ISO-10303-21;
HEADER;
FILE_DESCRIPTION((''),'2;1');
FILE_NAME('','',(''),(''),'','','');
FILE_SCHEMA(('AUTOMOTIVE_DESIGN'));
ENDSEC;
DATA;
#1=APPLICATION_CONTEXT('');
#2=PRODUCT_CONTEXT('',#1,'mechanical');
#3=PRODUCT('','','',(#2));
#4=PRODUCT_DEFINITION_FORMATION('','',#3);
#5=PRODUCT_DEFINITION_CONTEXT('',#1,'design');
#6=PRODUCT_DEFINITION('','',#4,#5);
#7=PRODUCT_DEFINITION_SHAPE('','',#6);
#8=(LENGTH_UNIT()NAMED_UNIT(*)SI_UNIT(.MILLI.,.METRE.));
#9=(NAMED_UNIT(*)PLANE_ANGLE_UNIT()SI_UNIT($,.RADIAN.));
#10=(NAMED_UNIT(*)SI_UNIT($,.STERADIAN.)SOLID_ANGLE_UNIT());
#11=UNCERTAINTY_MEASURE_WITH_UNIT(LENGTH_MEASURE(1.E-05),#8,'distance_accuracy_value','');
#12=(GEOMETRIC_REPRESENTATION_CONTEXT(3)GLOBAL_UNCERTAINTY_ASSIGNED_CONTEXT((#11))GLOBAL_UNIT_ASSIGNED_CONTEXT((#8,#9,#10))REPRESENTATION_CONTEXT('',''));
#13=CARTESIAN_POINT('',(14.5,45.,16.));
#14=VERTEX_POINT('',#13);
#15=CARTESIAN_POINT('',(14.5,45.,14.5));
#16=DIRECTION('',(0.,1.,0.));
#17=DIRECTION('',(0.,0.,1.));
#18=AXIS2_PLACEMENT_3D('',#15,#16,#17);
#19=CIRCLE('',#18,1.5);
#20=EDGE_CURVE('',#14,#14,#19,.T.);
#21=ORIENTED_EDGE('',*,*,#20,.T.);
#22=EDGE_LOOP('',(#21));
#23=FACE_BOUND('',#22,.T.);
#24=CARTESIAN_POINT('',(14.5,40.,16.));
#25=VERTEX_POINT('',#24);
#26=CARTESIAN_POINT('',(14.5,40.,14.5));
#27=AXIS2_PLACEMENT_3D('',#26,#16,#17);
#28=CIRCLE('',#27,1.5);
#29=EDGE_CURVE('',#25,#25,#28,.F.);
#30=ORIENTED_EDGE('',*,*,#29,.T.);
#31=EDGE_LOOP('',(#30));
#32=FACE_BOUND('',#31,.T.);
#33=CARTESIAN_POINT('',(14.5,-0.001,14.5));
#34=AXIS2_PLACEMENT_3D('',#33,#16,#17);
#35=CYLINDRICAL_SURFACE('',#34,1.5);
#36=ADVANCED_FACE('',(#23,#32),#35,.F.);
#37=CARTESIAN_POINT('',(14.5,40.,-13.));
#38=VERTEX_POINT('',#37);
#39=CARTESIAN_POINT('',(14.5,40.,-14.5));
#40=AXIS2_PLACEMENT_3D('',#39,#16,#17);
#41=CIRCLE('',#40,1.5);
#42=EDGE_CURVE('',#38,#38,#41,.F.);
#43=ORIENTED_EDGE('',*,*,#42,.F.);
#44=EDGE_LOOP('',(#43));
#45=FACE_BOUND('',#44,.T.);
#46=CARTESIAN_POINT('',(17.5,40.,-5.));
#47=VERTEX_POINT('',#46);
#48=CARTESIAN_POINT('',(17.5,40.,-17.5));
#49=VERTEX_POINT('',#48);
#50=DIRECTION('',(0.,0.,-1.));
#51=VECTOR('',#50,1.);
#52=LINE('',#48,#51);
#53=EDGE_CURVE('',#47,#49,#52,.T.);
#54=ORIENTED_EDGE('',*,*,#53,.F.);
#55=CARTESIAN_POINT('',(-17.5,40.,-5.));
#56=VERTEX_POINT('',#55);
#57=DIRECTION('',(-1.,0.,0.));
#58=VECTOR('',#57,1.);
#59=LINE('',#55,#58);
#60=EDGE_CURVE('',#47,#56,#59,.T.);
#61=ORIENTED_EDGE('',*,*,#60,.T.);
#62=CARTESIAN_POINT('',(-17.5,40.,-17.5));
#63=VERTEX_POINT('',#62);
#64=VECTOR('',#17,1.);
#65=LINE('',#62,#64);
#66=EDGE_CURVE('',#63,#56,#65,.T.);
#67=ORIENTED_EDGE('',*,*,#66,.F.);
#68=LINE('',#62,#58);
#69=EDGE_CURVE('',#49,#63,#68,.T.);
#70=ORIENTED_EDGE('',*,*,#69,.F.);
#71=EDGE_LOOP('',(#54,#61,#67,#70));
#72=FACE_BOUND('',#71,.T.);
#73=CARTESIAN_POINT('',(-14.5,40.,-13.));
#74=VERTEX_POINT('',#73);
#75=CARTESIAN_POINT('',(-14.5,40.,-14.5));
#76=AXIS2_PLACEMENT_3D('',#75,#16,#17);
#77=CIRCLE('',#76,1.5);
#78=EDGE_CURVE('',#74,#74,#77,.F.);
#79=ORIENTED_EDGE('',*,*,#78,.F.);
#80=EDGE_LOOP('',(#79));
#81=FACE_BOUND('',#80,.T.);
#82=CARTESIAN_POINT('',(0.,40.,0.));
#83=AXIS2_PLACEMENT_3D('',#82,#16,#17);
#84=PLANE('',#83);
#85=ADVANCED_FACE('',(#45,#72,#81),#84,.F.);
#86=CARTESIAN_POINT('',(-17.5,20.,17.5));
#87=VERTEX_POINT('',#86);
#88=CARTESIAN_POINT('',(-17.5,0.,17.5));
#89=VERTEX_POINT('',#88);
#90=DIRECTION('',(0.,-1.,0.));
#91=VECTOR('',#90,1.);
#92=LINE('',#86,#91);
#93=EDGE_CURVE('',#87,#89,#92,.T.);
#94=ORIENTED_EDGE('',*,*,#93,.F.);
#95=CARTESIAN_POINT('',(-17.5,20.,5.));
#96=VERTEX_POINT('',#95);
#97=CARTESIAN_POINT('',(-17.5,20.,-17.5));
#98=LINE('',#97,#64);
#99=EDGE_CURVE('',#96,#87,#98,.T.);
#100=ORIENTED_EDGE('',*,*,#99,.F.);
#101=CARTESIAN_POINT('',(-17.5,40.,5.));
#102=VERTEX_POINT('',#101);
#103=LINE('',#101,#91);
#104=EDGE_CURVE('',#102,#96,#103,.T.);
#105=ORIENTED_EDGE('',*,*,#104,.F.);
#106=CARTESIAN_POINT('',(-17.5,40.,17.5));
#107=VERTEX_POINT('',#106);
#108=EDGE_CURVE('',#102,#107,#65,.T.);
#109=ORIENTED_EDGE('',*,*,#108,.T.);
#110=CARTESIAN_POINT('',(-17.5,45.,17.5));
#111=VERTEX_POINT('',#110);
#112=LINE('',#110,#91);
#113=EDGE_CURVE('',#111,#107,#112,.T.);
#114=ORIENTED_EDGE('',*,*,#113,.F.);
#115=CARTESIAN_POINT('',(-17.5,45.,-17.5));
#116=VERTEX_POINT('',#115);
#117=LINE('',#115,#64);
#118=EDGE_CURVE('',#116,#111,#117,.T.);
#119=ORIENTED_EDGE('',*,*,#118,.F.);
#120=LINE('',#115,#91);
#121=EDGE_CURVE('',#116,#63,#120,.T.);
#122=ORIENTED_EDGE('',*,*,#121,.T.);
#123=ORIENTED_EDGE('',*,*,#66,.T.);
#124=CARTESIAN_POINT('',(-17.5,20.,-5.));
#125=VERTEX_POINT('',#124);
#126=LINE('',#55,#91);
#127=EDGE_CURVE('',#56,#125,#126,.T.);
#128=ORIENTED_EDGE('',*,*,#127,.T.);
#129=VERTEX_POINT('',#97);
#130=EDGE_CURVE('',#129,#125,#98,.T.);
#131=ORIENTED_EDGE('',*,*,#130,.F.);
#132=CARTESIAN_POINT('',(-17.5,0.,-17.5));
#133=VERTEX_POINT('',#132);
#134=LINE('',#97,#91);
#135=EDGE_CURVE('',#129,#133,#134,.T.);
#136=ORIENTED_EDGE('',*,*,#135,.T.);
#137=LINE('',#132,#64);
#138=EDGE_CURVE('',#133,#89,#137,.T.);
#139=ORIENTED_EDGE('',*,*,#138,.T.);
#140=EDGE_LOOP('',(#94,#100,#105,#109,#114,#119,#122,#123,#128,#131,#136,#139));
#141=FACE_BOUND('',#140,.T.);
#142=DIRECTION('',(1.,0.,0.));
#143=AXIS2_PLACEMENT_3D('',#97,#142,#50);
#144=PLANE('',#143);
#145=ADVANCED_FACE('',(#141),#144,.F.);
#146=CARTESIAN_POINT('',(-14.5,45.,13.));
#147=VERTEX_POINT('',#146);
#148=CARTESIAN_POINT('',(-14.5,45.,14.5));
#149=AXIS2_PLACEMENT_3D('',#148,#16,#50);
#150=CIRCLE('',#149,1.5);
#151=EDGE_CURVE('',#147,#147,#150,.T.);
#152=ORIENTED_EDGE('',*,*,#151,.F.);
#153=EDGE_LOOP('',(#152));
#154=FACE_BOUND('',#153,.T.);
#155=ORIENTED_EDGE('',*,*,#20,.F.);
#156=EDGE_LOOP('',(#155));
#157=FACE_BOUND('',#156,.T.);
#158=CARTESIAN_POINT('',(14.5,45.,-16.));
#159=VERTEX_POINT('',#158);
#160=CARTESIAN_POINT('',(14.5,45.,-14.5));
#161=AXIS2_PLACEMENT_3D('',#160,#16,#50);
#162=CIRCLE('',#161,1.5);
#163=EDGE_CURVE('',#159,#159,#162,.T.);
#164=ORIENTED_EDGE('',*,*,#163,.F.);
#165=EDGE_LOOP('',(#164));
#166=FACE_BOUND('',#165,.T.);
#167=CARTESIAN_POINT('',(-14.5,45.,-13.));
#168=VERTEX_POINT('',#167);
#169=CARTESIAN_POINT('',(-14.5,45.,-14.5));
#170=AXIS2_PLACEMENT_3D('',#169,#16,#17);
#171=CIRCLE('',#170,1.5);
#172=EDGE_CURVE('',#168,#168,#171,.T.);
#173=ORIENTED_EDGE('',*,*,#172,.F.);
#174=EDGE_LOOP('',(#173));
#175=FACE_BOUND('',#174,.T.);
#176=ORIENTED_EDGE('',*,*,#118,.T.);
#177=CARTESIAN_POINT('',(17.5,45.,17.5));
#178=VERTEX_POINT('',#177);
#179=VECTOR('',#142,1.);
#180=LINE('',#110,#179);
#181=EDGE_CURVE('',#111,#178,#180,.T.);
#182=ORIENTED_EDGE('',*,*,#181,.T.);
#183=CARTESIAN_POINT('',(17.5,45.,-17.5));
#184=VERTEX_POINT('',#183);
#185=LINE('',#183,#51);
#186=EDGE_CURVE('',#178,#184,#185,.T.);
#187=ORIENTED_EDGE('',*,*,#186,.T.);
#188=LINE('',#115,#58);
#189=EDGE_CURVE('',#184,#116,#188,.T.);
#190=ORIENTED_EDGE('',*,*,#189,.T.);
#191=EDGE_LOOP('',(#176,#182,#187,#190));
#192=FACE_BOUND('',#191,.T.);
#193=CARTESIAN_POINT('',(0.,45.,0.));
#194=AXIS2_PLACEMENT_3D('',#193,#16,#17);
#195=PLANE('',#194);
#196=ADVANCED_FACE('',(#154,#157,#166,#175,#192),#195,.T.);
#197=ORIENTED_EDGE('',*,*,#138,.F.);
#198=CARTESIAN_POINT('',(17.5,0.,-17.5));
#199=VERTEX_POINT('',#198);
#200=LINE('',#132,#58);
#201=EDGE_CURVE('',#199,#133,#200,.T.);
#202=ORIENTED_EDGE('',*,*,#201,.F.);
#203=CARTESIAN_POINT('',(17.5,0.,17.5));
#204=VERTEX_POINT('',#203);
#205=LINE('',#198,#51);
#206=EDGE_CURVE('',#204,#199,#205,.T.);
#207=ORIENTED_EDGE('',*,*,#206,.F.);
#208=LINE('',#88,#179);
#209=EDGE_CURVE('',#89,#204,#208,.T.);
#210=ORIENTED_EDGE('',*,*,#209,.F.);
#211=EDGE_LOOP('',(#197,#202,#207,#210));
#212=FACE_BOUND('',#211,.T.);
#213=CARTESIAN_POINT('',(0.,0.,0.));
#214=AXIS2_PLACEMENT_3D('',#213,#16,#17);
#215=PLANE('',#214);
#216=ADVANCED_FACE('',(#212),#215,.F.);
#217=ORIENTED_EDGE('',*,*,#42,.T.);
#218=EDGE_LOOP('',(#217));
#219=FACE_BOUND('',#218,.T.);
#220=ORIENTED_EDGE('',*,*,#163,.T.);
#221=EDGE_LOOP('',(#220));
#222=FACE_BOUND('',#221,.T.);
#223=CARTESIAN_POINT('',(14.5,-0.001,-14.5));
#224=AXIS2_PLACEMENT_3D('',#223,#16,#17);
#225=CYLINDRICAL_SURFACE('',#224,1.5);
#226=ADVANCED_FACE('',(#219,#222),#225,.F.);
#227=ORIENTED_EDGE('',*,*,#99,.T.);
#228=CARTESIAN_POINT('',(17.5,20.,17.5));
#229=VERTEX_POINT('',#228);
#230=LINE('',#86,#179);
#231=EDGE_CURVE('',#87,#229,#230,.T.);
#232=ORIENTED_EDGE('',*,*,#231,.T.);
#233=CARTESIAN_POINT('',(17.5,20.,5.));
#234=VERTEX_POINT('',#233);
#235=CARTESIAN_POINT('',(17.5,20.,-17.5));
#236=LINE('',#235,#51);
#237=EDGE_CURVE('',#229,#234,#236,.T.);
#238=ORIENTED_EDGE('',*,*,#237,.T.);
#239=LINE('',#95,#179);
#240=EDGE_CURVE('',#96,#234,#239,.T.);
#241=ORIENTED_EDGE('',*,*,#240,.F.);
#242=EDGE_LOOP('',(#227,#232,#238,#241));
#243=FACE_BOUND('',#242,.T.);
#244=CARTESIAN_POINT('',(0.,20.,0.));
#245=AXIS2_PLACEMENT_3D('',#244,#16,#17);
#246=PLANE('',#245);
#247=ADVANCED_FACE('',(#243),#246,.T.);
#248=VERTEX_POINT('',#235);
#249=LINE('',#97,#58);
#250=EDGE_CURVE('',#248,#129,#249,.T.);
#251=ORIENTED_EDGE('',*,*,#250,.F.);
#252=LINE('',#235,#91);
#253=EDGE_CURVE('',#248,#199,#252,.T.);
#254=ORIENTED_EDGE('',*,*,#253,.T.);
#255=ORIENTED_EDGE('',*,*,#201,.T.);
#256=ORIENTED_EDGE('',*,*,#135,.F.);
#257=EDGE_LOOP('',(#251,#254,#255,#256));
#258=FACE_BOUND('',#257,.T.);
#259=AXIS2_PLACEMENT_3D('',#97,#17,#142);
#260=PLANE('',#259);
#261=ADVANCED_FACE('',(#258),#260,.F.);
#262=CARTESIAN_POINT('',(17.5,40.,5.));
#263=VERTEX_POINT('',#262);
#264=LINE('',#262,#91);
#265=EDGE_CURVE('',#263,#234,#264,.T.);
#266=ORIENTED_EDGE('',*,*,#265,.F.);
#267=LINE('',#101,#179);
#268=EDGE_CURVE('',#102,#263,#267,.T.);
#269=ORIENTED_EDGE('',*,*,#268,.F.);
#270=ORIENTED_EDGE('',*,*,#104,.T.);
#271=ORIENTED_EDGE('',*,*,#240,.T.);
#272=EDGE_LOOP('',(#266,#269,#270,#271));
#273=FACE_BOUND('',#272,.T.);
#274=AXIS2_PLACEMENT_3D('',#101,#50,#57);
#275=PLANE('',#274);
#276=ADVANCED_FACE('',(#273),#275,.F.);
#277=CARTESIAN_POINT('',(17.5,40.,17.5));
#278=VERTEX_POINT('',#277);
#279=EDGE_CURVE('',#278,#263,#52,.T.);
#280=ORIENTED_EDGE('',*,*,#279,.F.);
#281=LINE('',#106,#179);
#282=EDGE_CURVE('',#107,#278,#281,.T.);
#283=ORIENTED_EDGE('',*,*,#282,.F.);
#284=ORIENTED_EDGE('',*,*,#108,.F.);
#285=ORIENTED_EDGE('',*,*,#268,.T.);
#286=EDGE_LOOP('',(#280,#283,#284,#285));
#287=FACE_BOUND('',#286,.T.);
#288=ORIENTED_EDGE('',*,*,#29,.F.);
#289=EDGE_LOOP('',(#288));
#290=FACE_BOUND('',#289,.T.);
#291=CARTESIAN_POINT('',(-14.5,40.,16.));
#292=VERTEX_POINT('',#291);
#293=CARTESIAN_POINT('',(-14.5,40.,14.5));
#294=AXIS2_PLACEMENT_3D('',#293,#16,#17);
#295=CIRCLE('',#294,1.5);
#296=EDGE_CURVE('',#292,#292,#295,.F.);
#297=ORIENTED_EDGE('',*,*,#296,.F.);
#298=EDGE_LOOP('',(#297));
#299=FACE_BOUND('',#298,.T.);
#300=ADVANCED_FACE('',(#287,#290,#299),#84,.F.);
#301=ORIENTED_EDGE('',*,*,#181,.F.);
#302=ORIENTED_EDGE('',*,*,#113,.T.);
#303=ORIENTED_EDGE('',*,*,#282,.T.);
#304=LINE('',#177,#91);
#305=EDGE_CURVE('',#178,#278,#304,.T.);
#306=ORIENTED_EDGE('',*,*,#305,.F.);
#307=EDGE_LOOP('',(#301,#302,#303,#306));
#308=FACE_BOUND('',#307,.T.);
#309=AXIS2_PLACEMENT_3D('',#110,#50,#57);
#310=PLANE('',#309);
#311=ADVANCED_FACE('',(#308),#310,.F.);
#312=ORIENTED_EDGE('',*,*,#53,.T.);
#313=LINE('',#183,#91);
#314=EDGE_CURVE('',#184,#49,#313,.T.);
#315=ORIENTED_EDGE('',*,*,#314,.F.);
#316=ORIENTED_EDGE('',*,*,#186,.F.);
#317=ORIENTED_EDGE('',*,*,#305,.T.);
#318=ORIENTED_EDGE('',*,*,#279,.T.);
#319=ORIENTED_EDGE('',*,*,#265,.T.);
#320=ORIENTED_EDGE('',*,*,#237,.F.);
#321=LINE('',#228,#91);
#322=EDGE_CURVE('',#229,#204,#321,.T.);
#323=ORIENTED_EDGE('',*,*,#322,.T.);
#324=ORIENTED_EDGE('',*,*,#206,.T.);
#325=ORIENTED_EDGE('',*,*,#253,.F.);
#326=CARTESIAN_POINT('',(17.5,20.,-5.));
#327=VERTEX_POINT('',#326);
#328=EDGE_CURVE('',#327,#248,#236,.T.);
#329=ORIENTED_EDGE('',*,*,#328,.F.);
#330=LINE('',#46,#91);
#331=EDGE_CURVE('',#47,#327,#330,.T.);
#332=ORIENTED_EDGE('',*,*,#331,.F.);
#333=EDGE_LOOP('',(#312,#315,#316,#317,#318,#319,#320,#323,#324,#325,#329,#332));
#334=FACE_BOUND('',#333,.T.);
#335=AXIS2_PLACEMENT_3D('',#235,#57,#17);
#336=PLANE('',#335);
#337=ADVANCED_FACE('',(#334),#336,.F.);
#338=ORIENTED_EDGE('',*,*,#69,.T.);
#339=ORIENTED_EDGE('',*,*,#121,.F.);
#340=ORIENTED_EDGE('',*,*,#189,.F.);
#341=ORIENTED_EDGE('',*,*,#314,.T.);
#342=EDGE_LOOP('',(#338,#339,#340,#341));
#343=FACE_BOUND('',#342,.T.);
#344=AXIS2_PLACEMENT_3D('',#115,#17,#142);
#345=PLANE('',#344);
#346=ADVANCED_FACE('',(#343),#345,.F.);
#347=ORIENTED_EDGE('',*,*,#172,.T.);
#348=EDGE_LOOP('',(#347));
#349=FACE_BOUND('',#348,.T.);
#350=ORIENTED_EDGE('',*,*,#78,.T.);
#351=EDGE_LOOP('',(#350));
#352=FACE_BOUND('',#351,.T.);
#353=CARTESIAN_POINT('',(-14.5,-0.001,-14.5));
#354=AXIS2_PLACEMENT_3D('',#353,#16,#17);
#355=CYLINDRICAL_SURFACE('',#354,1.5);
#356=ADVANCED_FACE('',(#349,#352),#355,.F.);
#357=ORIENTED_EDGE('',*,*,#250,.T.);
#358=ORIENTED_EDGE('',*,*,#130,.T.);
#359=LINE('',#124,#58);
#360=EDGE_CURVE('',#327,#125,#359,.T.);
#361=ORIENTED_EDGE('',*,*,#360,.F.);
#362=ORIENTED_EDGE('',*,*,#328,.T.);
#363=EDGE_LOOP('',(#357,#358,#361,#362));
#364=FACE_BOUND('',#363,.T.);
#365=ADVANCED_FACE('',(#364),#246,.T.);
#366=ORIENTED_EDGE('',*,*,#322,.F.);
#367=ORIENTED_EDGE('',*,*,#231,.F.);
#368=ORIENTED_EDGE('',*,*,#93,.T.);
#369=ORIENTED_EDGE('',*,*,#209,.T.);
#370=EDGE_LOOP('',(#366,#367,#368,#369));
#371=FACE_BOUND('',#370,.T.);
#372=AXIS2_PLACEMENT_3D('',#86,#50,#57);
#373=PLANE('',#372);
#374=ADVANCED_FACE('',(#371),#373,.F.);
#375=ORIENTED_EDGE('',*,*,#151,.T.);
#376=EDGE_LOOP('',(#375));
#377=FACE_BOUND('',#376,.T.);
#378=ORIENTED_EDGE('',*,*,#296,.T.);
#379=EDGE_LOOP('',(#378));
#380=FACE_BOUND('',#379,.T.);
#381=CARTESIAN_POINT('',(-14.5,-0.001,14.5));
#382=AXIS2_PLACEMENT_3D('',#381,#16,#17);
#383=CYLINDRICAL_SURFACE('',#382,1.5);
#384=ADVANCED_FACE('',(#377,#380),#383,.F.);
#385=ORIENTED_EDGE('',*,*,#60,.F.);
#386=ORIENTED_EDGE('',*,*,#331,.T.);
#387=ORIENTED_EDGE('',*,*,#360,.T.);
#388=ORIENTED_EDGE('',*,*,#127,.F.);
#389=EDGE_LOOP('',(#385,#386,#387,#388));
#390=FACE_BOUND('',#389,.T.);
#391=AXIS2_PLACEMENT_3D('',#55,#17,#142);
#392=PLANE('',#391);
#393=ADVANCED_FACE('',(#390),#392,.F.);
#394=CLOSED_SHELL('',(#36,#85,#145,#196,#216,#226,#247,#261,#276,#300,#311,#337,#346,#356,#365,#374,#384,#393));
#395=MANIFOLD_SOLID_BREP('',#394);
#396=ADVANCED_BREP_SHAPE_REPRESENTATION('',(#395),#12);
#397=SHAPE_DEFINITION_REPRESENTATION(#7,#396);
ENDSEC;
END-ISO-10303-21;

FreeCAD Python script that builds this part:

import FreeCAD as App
import Part
import Sketcher

V = App.Vector
Q = App.Units.Quantity

doc = App.newDocument("Part")
body = doc.addObject("PartDesign::Body", "Body")

# Sketch on XZ plane
sketch1 = body.newObject("Sketcher::SketchObject", "Sketch")
sketch1.AttachmentSupport = (doc.getObject("XZ_Plane"), [""])
sketch1.MapMode = "FlatFace"
sketch1.addGeometry([
    Part.LineSegment(V(-18, -18, 0), V(-18, 18, 0)),
    Part.LineSegment(V(-18, 18, 0), V(18, 18, 0)),
    Part.LineSegment(V(18, 18, 0), V(18, -18, 0)),
    Part.LineSegment(V(18, -18, 0), V(-18, -18, 0)),
], False)
sketch1.addConstraint([
    Sketcher.Constraint("Coincident", 0, 2, 1, 1),
    Sketcher.Constraint("Coincident", 1, 2, 2, 1),
    Sketcher.Constraint("Coincident", 2, 2, 3, 1),
    Sketcher.Constraint("Coincident", 3, 2, 0, 1),
    Sketcher.Constraint("Vertical", 0),
    Sketcher.Constraint("Horizontal", 1),
    Sketcher.Constraint("Vertical", 2),
    Sketcher.Constraint("Horizontal", 3),
    Sketcher.Constraint("Symmetric", 0, 2, 2, 2, -1, 1),
    Sketcher.Constraint("Equal", 3, 0),
    Sketcher.Constraint("DistanceX", 1, 1, 1, 2, Q("35 mm")),
])
pad1 = body.newObject("PartDesign::Pad", "Pad")
pad1.Profile = sketch1
pad1.Length = 20
pad1.Reversed = True

# Sketch on XZ plane
sketch2 = body.newObject("Sketcher::SketchObject", "Sketch001")
sketch2.AttachmentSupport = (doc.getObject("XZ_Plane"), [""])
sketch2.MapMode = "FlatFace"
sketch2.AttachmentOffset = App.Placement(V(0, 0, -20), App.Rotation())
sketch2.addGeometry([
    Part.LineSegment(V(-18, -5, 0), V(-18, 5, 0)),
    Part.LineSegment(V(-18, 5, 0), V(18, 5, 0)),
    Part.LineSegment(V(18, 5, 0), V(18, -5, 0)),
    Part.LineSegment(V(18, -5, 0), V(-18, -5, 0)),
], False)
sketch2.addConstraint([
    Sketcher.Constraint("Coincident", 0, 2, 1, 1),
    Sketcher.Constraint("Coincident", 1, 2, 2, 1),
    Sketcher.Constraint("Coincident", 2, 2, 3, 1),
    Sketcher.Constraint("Coincident", 3, 2, 0, 1),
    Sketcher.Constraint("Vertical", 0),
    Sketcher.Constraint("Horizontal", 1),
    Sketcher.Constraint("Vertical", 2),
    Sketcher.Constraint("Horizontal", 3),
    Sketcher.Constraint("Symmetric", 0, 2, 2, 2, -1, 1),
    Sketcher.Constraint("DistanceX", 1, 1, 1, 2, Q("35 mm")),
    Sketcher.Constraint("DistanceY", 0, 1, 0, 2, Q("10 mm")),
])
pad2 = body.newObject("PartDesign::Pad", "Pad001")
pad2.Profile = sketch2
pad2.Length = 20
pad2.Reversed = True

# Sketch on XZ plane
sketch3 = body.newObject("Sketcher::SketchObject", "Sketch002")
sketch3.AttachmentSupport = (doc.getObject("XZ_Plane"), [""])
sketch3.MapMode = "FlatFace"
sketch3.AttachmentOffset = App.Placement(V(0, 0, -40), App.Rotation())
sketch3.addGeometry([
    Part.LineSegment(V(-18, -18, 0), V(-18, 18, 0)),
    Part.LineSegment(V(-18, 18, 0), V(18, 18, 0)),
    Part.LineSegment(V(18, 18, 0), V(18, -18, 0)),
    Part.LineSegment(V(18, -18, 0), V(-18, -18, 0)),
], False)
sketch3.addConstraint([
    Sketcher.Constraint("Coincident", 0, 2, 1, 1),
    Sketcher.Constraint("Coincident", 1, 2, 2, 1),
    Sketcher.Constraint("Coincident", 2, 2, 3, 1),
    Sketcher.Constraint("Coincident", 3, 2, 0, 1),
    Sketcher.Constraint("Vertical", 0),
    Sketcher.Constraint("Horizontal", 1),
    Sketcher.Constraint("Vertical", 2),
    Sketcher.Constraint("Horizontal", 3),
    Sketcher.Constraint("Symmetric", 0, 2, 2, 2, -1, 1),
    Sketcher.Constraint("Equal", 3, 0),
    Sketcher.Constraint("DistanceX", 1, 1, 1, 2, Q("35 mm")),
])
pad3 = body.newObject("PartDesign::Pad", "Pad002")
pad3.Profile = sketch3
pad3.Length = 5
pad3.Reversed = True

# Sketch on XZ plane
sketch4 = body.newObject("Sketcher::SketchObject", "Sketch003")
sketch4.AttachmentSupport = (doc.getObject("XZ_Plane"), [""])
sketch4.MapMode = "FlatFace"
sketch4.AttachmentOffset = App.Placement(V(0, 0, -45), App.Rotation())
sketch4.addGeometry(Part.Circle(V(-14.5, -14.5, 0), V(0, 0, 1), 1.5), False)
sketch4.addConstraint([
    Sketcher.Constraint("Diameter", 0, Q("3 mm")),
    Sketcher.Constraint("DistanceX", 0, 3, -1, 1, Q("14.5 mm")),
    Sketcher.Constraint("DistanceY", 0, 3, -1, 1, Q("14.5 mm")),
])
pocket1 = body.newObject("PartDesign::Pocket", "Pocket")
pocket1.Profile = sketch4
pocket1.Type = "UpToFirst"
pocket1.Reversed = True

# Sketch on XZ plane
sketch5 = body.newObject("Sketcher::SketchObject", "Sketch004")
sketch5.AttachmentSupport = (doc.getObject("XZ_Plane"), [""])
sketch5.MapMode = "FlatFace"
sketch5.AttachmentOffset = App.Placement(V(0, 0, -45), App.Rotation())
sketch5.addGeometry(Part.Circle(V(14.5, -14.5, 0), V(0, 0, 1), 1.5), False)
sketch5.addConstraint([
    Sketcher.Constraint("Diameter", 0, Q("3 mm")),
    Sketcher.Constraint("DistanceX", -1, 1, 0, 3, Q("14.5 mm")),
    Sketcher.Constraint("DistanceY", 0, 3, -1, 1, Q("14.5 mm")),
])
pocket2 = body.newObject("PartDesign::Pocket", "Pocket001")
pocket2.Profile = sketch5
pocket2.Type = "UpToFirst"
pocket2.Reversed = True

# Sketch on XZ plane
sketch6 = body.newObject("Sketcher::SketchObject", "Sketch005")
sketch6.AttachmentSupport = (doc.getObject("XZ_Plane"), [""])
sketch6.MapMode = "FlatFace"
sketch6.AttachmentOffset = App.Placement(V(0, 0, -45), App.Rotation())
sketch6.addGeometry(Part.Circle(V(14.5, 14.5, 0), V(0, 0, 1), 1.5), False)
sketch6.addConstraint([
    Sketcher.Constraint("Diameter", 0, Q("3 mm")),
    Sketcher.Constraint("DistanceX", -1, 1, 0, 3, Q("14.5 mm")),
    Sketcher.Constraint("DistanceY", -1, 1, 0, 3, Q("14.5 mm")),
])
pocket3 = body.newObject("PartDesign::Pocket", "Pocket002")
pocket3.Profile = sketch6
pocket3.Type = "UpToFirst"
pocket3.Reversed = True

# Sketch on XZ plane
sketch7 = body.newObject("Sketcher::SketchObject", "Sketch006")
sketch7.AttachmentSupport = (doc.getObject("XZ_Plane"), [""])
sketch7.MapMode = "FlatFace"
sketch7.AttachmentOffset = App.Placement(V(0, 0, -45), App.Rotation())
sketch7.addGeometry(Part.Circle(V(-14.5, 14.5, 0), V(0, 0, 1), 1.5), False)
sketch7.addConstraint([
    Sketcher.Constraint("Diameter", 0, Q("3 mm")),
    Sketcher.Constraint("DistanceX", 0, 3, -1, 1, Q("14.5 mm")),
    Sketcher.Constraint("DistanceY", -1, 1, 0, 3, Q("14.5 mm")),
])
pocket4 = body.newObject("PartDesign::Pocket", "Pocket003")
pocket4.Profile = sketch7
pocket4.Type = "UpToFirst"
pocket4.Reversed = True

doc.recompute()
